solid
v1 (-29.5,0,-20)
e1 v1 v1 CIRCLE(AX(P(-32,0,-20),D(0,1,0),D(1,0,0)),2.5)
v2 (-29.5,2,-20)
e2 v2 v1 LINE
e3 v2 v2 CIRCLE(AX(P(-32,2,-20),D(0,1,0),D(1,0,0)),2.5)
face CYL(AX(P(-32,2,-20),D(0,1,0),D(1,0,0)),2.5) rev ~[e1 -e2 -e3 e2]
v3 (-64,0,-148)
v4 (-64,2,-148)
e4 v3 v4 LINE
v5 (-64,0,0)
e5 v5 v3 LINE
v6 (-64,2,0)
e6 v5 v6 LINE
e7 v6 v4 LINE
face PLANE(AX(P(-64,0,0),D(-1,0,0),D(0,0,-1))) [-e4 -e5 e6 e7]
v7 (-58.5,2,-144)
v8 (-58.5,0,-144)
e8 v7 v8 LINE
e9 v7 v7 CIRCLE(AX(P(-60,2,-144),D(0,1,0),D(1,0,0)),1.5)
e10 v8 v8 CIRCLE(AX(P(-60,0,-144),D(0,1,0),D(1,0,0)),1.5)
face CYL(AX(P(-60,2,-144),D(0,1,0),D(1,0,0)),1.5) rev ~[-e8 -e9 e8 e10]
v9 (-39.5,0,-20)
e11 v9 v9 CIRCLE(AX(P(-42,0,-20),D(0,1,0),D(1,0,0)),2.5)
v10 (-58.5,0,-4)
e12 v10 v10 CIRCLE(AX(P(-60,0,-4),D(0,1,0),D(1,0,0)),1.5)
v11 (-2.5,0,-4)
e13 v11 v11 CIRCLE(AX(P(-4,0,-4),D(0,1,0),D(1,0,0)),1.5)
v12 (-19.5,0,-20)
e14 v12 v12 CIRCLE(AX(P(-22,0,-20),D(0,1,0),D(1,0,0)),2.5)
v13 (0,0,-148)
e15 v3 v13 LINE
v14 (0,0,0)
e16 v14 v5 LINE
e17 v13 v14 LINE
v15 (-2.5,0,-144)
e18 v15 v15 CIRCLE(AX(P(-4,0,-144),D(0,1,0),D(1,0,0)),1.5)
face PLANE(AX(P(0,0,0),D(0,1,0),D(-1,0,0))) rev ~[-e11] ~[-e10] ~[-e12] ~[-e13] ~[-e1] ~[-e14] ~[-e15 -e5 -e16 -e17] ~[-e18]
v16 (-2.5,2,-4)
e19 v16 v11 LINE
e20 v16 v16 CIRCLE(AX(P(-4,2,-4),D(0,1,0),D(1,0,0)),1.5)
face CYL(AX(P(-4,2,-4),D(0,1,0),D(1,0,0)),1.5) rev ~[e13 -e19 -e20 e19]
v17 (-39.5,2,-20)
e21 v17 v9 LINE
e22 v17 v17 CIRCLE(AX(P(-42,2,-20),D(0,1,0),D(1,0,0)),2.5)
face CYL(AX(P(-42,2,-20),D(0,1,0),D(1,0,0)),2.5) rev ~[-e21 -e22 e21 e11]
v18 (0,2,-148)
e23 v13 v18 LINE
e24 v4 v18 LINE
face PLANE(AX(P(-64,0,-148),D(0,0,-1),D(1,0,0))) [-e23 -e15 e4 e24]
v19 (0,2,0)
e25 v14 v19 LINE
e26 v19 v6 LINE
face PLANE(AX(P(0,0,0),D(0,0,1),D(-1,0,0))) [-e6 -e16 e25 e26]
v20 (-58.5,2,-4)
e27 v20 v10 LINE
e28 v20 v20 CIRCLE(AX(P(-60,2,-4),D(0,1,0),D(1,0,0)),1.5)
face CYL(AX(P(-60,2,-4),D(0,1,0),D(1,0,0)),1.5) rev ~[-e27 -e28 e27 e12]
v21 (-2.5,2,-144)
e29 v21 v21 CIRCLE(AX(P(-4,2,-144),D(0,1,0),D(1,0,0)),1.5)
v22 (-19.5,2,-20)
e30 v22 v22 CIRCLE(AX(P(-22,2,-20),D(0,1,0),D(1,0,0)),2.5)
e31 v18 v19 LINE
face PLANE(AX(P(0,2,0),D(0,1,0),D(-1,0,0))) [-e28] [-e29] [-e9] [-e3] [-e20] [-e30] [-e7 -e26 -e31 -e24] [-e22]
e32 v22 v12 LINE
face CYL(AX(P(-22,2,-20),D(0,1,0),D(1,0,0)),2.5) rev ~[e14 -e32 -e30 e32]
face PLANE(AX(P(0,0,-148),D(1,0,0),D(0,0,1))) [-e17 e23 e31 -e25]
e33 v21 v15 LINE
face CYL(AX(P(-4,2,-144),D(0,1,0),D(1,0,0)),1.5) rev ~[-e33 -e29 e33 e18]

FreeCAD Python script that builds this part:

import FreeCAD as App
import Part
import Sketcher

V = App.Vector


def add_polygon(sketch, points):
    """Adds a closed chain of lines whose ends are joined by coincident constraints."""
    first, n = sketch.GeometryCount, len(points)
    for a, b in zip(points, points[1:] + points[:1]):
        sketch.addGeometry(Part.LineSegment(App.Vector(*a, 0), App.Vector(*b, 0)), False)
    for i in range(n):
        sketch.addConstraint(Sketcher.Constraint("Coincident", first + i, 2, first + (i + 1) % n, 1))

doc = App.newDocument("Part")
body = doc.addObject("PartDesign::Body", "Body")

sketch1 = body.newObject("Sketcher::SketchObject", "Sketch")
sketch1.AttachmentSupport = (doc.getObject("XZ_Plane"), [""])
sketch1.MapMode = "FlatFace"
add_polygon(sketch1, [(-64, 0), (0, 0), (0, -148), (-64, -148)])
sketch1.addConstraint([
    Sketcher.Constraint("Horizontal", 0),
    Sketcher.Constraint("Vertical", 1),
    Sketcher.Constraint("Horizontal", 2),
    Sketcher.Constraint("Vertical", 3),
    Sketcher.Constraint("Coincident", 0, 2, -1, 1),
    Sketcher.Constraint("DistanceX", 0, 1, 0, 2, 64.0),
    Sketcher.Constraint("DistanceY", 1, 2, 1, 1, 148.0),
])
pad1 = body.newObject("PartDesign::Pad", "Pad")
pad1.Profile = sketch1
pad1.Length = 2
pad1.Reversed = True

sketch2 = body.newObject("Sketcher::SketchObject", "Sketch001")
sketch2.AttachmentSupport = (doc.getObject("XZ_Plane"), [""])
sketch2.MapMode = "FlatFace"
sketch2.AttachmentOffset = App.Placement(V(0, 0, -2), App.Rotation())
sketch2.addGeometry([
    Part.Circle(V(-4, -4, 0), V(0, 0, 1), 1.5),
    Part.Circle(V(-60, -4, 0), V(0, 0, 1), 1.5),
    Part.Circle(V(-60, -144, 0), V(0, 0, 1), 1.5),
    Part.Circle(V(-4, -144, 0), V(0, 0, 1), 1.5),
], False)
sketch2.addConstraint([
    Sketcher.Constraint("Equal", 0, 1),
    Sketcher.Constraint("Equal", 1, 2),
    Sketcher.Constraint("Equal", 2, 3),
    Sketcher.Constraint("Horizontal", 0, 3, 1, 3),
    Sketcher.Constraint("Horizontal", 2, 3, 3, 3),
    Sketcher.Constraint("Vertical", 1, 3, 2, 3),
    Sketcher.Constraint("Vertical", 0, 3, 3, 3),
    Sketcher.Constraint("Diameter", 0, 3.0),
    Sketcher.Constraint("DistanceX", 0, 3, -1, 1, 4.0),
    Sketcher.Constraint("DistanceY", 0, 3, -1, 1, 4.0),
    Sketcher.Constraint("DistanceX", 1, 3, -1, 1, 60.0),
    Sketcher.Constraint("DistanceY", 2, 3, -1, 1, 144.0),
])
pocket1 = body.newObject("PartDesign::Pocket", "Pocket")
pocket1.Profile = sketch2
pocket1.Length = 2
pocket1.Reversed = True

sketch3 = body.newObject("Sketcher::SketchObject", "Sketch002")
sketch3.AttachmentSupport = (doc.getObject("XZ_Plane"), [""])
sketch3.MapMode = "FlatFace"
sketch3.AttachmentOffset = App.Placement(V(0, 0, -2), App.Rotation())
sketch3.addGeometry([
    Part.Circle(V(-22, -20, 0), V(0, 0, 1), 2.5),
    Part.Circle(V(-32, -20, 0), V(0, 0, 1), 2.5),
    Part.Circle(V(-42, -20, 0), V(0, 0, 1), 2.5),
], False)
sketch3.addConstraint([
    Sketcher.Constraint("Equal", 0, 1),
    Sketcher.Constraint("Equal", 1, 2),
    Sketcher.Constraint("Horizontal", 0, 3, 1, 3),
    Sketcher.Constraint("Horizontal", 1, 3, 2, 3),
    Sketcher.Constraint("Diameter", 0, 5.0),
    Sketcher.Constraint("DistanceY", 0, 3, -1, 1, 20.0),
    Sketcher.Constraint("DistanceX", 1, 3, -1, 1, 32.0),
    Sketcher.Constraint("DistanceX", 1, 3, 0, 3, 10.0),
    Sketcher.Constraint("DistanceX", 2, 3, 1, 3, 10.0),
])
pocket2 = body.newObject("PartDesign::Pocket", "Pocket001")
pocket2.Profile = sketch3
pocket2.Length = 2
pocket2.Reversed = True

doc.recompute()
